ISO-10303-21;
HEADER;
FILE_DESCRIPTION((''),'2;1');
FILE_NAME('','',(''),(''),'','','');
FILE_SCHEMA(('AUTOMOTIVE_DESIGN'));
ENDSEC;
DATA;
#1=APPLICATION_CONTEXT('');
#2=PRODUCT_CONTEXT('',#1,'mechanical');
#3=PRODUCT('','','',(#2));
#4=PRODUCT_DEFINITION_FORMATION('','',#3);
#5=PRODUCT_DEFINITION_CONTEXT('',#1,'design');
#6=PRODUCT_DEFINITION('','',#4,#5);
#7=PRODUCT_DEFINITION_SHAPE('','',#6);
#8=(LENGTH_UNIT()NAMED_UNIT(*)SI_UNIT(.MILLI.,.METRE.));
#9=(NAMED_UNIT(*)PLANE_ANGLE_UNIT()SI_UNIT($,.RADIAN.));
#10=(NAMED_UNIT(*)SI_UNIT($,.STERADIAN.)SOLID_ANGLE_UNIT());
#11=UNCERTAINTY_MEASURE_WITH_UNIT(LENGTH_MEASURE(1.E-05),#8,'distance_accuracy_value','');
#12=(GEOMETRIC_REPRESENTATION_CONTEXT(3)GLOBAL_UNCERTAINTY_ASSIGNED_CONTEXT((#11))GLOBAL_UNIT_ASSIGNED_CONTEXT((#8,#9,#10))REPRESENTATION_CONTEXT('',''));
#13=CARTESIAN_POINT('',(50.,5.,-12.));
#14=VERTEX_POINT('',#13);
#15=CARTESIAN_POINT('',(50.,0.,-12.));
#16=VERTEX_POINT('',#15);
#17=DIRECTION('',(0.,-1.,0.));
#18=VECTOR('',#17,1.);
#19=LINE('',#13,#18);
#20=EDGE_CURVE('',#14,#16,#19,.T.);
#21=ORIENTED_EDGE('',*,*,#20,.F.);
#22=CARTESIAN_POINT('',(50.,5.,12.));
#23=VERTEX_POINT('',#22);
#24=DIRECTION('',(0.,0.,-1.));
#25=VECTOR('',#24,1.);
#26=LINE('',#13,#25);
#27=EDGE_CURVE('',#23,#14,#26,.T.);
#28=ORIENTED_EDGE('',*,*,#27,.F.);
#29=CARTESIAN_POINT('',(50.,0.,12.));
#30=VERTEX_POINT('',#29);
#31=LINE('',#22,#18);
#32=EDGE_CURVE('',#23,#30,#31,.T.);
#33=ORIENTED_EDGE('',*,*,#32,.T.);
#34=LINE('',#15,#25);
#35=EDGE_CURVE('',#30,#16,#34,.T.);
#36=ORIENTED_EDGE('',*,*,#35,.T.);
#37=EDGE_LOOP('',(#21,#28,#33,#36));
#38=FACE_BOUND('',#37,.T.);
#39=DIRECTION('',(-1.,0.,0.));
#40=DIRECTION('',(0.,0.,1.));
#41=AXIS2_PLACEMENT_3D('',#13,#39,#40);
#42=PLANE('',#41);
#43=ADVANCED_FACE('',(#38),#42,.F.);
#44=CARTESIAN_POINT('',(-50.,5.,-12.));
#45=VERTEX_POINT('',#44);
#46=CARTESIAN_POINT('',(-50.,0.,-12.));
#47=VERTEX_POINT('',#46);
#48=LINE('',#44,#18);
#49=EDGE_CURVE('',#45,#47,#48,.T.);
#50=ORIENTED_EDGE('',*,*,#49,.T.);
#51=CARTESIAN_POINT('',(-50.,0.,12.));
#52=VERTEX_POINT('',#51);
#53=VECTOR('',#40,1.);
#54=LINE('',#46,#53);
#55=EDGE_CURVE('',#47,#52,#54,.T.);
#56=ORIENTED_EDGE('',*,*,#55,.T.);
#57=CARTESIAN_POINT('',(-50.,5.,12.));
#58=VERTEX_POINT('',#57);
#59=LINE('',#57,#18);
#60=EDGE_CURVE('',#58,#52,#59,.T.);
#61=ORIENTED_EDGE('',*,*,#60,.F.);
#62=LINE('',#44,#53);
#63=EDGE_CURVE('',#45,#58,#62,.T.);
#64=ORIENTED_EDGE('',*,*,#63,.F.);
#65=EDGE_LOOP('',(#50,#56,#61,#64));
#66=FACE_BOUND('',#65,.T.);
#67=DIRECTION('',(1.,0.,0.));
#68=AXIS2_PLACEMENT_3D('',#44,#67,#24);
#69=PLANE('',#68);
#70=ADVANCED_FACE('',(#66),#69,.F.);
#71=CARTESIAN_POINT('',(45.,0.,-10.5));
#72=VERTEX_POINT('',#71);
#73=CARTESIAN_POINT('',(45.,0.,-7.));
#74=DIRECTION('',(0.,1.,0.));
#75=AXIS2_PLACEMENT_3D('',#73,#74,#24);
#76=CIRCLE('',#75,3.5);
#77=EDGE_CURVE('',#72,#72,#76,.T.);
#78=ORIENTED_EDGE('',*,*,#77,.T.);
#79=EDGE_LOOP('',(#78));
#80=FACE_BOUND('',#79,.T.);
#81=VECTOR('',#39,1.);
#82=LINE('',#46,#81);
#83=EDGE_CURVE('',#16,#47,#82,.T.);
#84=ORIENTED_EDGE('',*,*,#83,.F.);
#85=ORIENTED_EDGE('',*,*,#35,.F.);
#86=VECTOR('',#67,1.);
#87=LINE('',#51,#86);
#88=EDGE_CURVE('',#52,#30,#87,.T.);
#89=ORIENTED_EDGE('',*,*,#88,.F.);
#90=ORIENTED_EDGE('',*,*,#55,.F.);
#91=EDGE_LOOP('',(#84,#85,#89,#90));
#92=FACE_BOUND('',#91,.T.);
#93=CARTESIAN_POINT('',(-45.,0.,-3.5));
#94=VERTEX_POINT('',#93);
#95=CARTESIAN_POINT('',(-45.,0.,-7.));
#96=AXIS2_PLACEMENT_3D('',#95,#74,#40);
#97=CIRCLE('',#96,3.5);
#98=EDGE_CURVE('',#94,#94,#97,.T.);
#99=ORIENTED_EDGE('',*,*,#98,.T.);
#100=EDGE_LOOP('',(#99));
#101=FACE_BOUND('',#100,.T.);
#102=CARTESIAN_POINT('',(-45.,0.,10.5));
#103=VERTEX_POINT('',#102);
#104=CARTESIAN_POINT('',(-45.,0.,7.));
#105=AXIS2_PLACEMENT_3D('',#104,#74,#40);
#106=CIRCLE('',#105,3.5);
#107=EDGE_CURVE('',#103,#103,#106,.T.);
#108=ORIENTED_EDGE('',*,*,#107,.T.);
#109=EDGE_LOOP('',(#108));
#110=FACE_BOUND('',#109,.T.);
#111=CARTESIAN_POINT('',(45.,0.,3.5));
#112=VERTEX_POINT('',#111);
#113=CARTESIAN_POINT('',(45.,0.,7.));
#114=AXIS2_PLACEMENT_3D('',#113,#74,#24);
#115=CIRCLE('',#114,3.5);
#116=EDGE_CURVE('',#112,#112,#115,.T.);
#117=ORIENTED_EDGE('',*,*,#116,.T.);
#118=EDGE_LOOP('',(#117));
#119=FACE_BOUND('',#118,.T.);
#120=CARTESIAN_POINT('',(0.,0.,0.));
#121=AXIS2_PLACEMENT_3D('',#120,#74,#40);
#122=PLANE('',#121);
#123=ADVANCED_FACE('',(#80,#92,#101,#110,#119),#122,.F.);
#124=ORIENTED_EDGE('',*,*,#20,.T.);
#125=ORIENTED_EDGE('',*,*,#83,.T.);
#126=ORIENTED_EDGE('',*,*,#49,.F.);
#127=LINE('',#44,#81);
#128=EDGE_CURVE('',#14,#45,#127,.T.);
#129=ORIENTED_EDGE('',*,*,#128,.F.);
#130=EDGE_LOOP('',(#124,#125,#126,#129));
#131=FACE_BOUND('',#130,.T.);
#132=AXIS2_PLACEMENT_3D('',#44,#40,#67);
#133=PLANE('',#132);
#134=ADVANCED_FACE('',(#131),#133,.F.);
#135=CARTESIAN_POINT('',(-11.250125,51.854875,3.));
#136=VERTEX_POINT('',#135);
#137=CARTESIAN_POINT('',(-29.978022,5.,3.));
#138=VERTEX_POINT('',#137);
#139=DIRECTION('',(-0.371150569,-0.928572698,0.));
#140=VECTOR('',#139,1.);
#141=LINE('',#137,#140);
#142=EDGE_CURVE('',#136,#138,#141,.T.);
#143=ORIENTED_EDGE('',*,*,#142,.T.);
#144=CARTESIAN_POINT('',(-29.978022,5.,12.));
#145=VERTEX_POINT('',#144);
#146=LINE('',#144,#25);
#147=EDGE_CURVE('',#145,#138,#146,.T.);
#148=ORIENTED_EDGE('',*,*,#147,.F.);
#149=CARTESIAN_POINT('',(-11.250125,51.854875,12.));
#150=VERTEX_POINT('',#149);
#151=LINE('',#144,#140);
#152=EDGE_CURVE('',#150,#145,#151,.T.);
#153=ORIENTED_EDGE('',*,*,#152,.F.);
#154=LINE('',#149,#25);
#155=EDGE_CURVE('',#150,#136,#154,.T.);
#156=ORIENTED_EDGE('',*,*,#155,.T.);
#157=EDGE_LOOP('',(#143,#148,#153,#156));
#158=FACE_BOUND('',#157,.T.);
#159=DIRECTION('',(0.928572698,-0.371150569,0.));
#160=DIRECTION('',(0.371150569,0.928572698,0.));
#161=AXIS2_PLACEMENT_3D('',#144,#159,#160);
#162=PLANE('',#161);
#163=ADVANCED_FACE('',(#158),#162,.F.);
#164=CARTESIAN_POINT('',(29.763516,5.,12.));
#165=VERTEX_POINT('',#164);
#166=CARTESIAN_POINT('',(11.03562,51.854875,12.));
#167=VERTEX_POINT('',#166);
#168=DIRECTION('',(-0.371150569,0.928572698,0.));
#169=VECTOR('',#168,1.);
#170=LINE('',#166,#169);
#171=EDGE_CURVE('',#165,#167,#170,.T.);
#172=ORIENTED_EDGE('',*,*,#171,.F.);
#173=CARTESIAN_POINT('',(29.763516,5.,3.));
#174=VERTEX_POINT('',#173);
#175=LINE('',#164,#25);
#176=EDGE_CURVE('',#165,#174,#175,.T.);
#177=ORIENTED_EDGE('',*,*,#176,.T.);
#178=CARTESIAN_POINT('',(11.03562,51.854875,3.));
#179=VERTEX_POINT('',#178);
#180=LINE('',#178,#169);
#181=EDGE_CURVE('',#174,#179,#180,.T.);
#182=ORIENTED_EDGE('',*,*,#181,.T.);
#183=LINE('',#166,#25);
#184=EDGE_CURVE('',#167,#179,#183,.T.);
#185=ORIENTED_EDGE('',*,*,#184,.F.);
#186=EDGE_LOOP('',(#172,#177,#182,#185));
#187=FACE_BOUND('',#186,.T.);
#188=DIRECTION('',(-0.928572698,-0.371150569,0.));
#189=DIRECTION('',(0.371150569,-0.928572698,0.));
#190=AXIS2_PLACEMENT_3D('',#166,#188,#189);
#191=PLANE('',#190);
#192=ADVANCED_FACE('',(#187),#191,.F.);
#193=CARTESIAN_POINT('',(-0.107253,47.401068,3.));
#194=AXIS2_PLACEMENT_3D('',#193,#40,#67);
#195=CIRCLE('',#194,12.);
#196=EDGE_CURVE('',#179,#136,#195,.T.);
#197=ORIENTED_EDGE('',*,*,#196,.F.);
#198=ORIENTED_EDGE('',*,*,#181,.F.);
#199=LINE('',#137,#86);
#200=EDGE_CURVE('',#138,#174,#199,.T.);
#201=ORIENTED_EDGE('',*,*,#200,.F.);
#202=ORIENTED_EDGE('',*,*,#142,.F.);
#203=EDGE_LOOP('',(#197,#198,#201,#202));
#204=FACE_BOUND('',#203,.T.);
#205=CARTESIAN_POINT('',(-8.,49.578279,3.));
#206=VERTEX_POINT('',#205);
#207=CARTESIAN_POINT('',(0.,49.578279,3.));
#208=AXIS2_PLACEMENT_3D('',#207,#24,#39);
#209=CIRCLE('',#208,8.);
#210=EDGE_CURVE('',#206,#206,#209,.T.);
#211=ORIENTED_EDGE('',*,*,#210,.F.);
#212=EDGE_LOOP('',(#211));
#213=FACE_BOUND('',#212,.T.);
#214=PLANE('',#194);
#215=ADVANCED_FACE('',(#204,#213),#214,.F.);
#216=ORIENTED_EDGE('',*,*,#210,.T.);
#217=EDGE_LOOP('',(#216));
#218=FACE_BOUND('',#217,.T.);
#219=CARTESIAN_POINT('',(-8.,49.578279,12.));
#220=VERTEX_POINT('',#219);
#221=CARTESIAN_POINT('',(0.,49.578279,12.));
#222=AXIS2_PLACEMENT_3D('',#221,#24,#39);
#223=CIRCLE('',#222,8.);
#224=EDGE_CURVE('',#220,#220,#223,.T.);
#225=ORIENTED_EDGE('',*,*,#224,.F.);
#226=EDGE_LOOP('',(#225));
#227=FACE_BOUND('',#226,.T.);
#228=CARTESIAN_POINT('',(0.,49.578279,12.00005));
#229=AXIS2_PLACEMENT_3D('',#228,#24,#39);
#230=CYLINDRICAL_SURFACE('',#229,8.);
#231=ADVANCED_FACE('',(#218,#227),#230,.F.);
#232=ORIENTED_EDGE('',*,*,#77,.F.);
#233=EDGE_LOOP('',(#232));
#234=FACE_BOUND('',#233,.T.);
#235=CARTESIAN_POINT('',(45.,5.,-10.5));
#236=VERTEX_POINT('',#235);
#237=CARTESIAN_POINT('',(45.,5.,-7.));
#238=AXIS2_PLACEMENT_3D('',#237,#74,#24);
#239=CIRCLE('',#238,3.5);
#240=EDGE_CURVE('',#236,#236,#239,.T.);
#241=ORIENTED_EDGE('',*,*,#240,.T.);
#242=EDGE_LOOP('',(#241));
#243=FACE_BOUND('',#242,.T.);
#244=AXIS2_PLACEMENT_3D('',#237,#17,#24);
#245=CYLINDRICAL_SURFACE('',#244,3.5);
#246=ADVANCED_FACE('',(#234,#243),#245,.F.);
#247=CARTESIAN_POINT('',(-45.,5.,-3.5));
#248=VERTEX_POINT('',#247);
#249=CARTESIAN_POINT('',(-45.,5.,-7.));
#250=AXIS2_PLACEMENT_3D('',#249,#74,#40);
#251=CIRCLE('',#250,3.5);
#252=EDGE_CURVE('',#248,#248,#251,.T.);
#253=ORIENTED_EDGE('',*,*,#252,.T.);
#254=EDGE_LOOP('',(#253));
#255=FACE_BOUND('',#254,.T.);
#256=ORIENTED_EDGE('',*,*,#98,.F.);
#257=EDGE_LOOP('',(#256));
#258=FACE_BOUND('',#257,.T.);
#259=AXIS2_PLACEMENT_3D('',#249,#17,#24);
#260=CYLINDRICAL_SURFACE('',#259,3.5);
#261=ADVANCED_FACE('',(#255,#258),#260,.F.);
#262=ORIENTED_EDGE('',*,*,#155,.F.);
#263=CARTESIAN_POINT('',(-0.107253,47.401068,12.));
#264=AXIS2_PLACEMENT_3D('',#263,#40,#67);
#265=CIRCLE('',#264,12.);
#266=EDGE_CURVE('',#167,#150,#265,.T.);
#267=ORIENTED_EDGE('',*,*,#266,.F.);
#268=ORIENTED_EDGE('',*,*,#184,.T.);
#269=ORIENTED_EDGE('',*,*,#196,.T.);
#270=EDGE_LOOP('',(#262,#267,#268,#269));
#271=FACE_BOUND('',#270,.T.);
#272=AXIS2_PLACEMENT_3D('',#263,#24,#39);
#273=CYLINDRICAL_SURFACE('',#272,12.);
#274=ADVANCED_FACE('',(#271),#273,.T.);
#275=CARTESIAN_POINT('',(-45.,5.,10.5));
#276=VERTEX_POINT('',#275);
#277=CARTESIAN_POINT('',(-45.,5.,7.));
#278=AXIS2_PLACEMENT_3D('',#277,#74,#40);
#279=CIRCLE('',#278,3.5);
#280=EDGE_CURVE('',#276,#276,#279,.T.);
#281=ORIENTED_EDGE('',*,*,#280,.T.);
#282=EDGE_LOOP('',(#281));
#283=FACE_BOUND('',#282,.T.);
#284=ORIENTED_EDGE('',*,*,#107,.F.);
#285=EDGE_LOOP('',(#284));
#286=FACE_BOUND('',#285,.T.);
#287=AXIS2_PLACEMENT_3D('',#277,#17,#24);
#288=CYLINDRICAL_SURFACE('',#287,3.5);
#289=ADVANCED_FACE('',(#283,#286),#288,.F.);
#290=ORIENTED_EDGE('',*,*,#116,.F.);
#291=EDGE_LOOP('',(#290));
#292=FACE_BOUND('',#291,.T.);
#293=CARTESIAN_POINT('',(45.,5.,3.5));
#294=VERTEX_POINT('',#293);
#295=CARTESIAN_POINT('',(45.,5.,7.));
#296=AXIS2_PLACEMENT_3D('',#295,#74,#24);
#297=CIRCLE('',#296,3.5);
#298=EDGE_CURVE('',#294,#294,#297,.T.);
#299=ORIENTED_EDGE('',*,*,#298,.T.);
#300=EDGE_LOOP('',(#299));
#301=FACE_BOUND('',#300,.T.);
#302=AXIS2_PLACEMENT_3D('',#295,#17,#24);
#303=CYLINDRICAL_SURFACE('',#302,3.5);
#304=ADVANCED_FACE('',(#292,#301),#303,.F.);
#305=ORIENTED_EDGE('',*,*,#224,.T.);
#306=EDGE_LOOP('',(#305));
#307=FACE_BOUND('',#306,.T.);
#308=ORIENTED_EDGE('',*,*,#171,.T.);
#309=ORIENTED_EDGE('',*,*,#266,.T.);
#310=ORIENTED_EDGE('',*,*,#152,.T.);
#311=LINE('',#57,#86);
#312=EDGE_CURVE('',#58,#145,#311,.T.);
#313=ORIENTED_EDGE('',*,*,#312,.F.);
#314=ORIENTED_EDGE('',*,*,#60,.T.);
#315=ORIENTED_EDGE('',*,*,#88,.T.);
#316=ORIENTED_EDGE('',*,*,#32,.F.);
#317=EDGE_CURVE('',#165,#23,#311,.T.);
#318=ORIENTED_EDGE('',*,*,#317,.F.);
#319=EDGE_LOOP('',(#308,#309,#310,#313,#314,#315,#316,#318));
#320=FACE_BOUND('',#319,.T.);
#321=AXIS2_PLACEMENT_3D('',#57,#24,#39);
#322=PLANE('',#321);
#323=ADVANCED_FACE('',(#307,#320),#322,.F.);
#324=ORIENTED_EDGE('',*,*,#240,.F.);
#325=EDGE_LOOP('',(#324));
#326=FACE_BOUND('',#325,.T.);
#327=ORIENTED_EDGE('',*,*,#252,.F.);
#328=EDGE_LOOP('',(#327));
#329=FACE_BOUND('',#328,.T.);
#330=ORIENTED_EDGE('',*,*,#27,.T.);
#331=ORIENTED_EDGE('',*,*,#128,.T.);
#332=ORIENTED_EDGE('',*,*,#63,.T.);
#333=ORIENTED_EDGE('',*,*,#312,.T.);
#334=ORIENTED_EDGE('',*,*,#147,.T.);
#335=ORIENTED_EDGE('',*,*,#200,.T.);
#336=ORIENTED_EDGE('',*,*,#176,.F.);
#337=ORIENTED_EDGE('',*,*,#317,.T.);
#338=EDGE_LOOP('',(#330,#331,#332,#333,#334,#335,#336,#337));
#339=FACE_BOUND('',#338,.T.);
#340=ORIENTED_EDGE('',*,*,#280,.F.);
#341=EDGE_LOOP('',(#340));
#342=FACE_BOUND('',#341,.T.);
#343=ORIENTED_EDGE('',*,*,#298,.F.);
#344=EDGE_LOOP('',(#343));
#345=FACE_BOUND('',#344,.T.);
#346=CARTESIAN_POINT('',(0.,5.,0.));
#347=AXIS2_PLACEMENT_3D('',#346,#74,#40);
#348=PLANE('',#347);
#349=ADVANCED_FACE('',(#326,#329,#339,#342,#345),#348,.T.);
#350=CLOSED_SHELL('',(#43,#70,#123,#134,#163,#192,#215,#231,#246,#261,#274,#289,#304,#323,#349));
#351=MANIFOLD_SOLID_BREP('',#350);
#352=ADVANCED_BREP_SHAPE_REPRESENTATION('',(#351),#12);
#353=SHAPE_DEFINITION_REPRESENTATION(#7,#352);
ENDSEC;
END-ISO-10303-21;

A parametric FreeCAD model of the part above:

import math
import FreeCAD as App
import Part
import Sketcher
from FreeCAD import Vector
Q = App.Units.Quantity

doc = App.newDocument("Part")
body = doc.addObject("PartDesign::Body", "Body")

sketch1 = doc.addObject("Sketcher::SketchObject", "Sketch")
body.addObject(sketch1)
sketch1.AttachmentSupport = (doc.XZ_Plane, [""])
sketch1.MapMode = "FlatFace"
sketch1.addGeometry(Part.LineSegment(Vector(-50, -12, 0), Vector(-50, 12, 0)), False)
sketch1.addGeometry(Part.LineSegment(Vector(-50, 12, 0), Vector(50, 12, 0)), False)
sketch1.addGeometry(Part.LineSegment(Vector(50, 12, 0), Vector(50, -12, 0)), False)
sketch1.addGeometry(Part.LineSegment(Vector(50, -12, 0), Vector(-50, -12, 0)), False)
sketch1.addGeometry(Part.Circle(Vector(-45, 7, 0), Vector(0, 0, 1), 3.5), False)
sketch1.addGeometry(Part.Circle(Vector(45, 7, 0), Vector(0, 0, 1), 3.5), False)
sketch1.addGeometry(Part.Circle(Vector(-45, -7, 0), Vector(0, 0, 1), 3.5), False)
sketch1.addGeometry(Part.Circle(Vector(45, -7, 0), Vector(0, 0, 1), 3.5), False)
sketch1.addConstraint(Sketcher.Constraint("Coincident", 0, 2, 1, 1))
sketch1.addConstraint(Sketcher.Constraint("Coincident", 1, 2, 2, 1))
sketch1.addConstraint(Sketcher.Constraint("Coincident", 2, 2, 3, 1))
sketch1.addConstraint(Sketcher.Constraint("Coincident", 3, 2, 0, 1))
sketch1.addConstraint(Sketcher.Constraint("Vertical", 0))
sketch1.addConstraint(Sketcher.Constraint("Horizontal", 1))
sketch1.addConstraint(Sketcher.Constraint("Vertical", 2))
sketch1.addConstraint(Sketcher.Constraint("Horizontal", 3))
sketch1.addConstraint(Sketcher.Constraint("Equal", 4, 5))
sketch1.addConstraint(Sketcher.Constraint("Equal", 5, 6))
sketch1.addConstraint(Sketcher.Constraint("Equal", 6, 7))
sketch1.addConstraint(Sketcher.Constraint("Symmetric", 5, 3, 6, 3, -1, 1))
sketch1.addConstraint(Sketcher.Constraint("Symmetric", 4, 3, 7, 3, -1, 1))
sketch1.addConstraint(Sketcher.Constraint("Symmetric", 0, 2, 2, 2, -1, 1))
sketch1.addConstraint(Sketcher.Constraint("Symmetric", 4, 3, 5, 3, -2))
sketch1.addConstraint(Sketcher.Constraint("Diameter", 4, Q("7 mm")))
sketch1.addConstraint(Sketcher.Constraint("DistanceX", 1, 1, 1, 2, Q("100 mm")))
sketch1.addConstraint(Sketcher.Constraint("DistanceY", 0, 1, 0, 2, Q("24 mm")))
sketch1.addConstraint(Sketcher.Constraint("DistanceX", 4, 3, -1, 1, Q("45 mm")))
sketch1.addConstraint(Sketcher.Constraint("DistanceY", -1, 1, 4, 3, Q("7 mm")))
pad1 = doc.addObject("PartDesign::Pad", "Pad")
body.addObject(pad1)
pad1.Profile = sketch1
pad1.Length = 5
pad1.Reversed = True

sketch2 = doc.addObject("Sketcher::SketchObject", "Sketch001")
body.addObject(sketch2)
sketch2.AttachmentSupport = (doc.XY_Plane, [""])
sketch2.MapMode = "FlatFace"
sketch2.AttachmentOffset = App.Placement(Vector(0, 0, 3), App.Rotation())
sketch2.addGeometry(Part.LineSegment(Vector(-29.978022, 5, 0), Vector(29.763516, 5, 0)), False)
sketch2.addGeometry(Part.LineSegment(Vector(29.763516, 5, 0), Vector(11.03562, 51.854875, 0)), False)
sketch2.addGeometry(Part.ArcOfCircle(Part.Circle(Vector(-0.107253, 47.401068, 0), Vector(0, 0, 1), 12), math.radians(21.786593), math.radians(158.213407)), False)
sketch2.addGeometry(Part.LineSegment(Vector(-11.250125, 51.854875, 0), Vector(-29.978022, 5, 0)), False)
sketch2.addConstraint(Sketcher.Constraint("Coincident", 0, 2, 1, 1))
sketch2.addConstraint(Sketcher.Constraint("Tangent", 1, 2, 2, 1))
sketch2.addConstraint(Sketcher.Constraint("Tangent", 2, 2, 3, 1))
sketch2.addConstraint(Sketcher.Constraint("Coincident", 3, 2, 0, 1))
sketch2.addConstraint(Sketcher.Constraint("Horizontal", 0))
sketch2.addConstraint(Sketcher.Constraint("Horizontal", 1, 2, 2, 2))
sketch2.addConstraint(Sketcher.Constraint("Radius", 2, Q("12 mm")))
sketch2.addConstraint(Sketcher.Constraint("DistanceY", -1, 1, 0, 2, Q("5 mm")))
sketch2.addConstraint(Sketcher.Constraint("DistanceX", 0, 1, 0, 2, Q("59.741538 mm")))
sketch2.addConstraint(Sketcher.Constraint("DistanceX", -1, 1, 1, 2, Q("11.03562 mm")))
sketch2.addConstraint(Sketcher.Constraint("DistanceX", 3, 2, -1, 1, Q("29.978022 mm")))
pad2 = doc.addObject("PartDesign::Pad", "Pad001")
body.addObject(pad2)
pad2.Profile = sketch2
pad2.Length = 9

sketch3 = doc.addObject("Sketcher::SketchObject", "Sketch002")
body.addObject(sketch3)
sketch3.AttachmentSupport = (doc.XY_Plane, [""])
sketch3.MapMode = "FlatFace"
sketch3.AttachmentOffset = App.Placement(Vector(0, 0, 3), App.Rotation())
sketch3.addGeometry(Part.Circle(Vector(0, 49.578279, 0), Vector(0, 0, 1), 8), False)
sketch3.addConstraint(Sketcher.Constraint("PointOnObject", 0, 3, -2))
sketch3.addConstraint(Sketcher.Constraint("Diameter", 0, Q("16 mm")))
sketch3.addConstraint(Sketcher.Constraint("DistanceY", -1, 1, 0, 3, Q("49.578279 mm")))
pocket1 = doc.addObject("PartDesign::Pocket", "Pocket")
body.addObject(pocket1)
pocket1.Profile = sketch3
pocket1.Type = "ThroughAll"
pocket1.Reversed = True

doc.recompute()
